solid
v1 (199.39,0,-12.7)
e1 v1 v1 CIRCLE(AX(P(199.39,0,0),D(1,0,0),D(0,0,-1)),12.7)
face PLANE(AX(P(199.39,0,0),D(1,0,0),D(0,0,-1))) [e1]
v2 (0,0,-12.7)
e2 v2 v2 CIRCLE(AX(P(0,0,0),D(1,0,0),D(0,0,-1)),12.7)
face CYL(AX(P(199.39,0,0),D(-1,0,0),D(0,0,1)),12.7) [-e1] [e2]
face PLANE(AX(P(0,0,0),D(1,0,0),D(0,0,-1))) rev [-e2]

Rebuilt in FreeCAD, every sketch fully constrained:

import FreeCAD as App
import Part
import Sketcher
Q = App.Units.Quantity

doc = App.newDocument("Part")
body = doc.addObject("PartDesign::Body", "Body")

# Sketch on YZ plane
sketch1 = body.newObject("Sketcher::SketchObject", "Sketch")
sketch1.AttachmentSupport = (doc.getObject("YZ_Plane"), [""])
sketch1.MapMode = "FlatFace"
sketch1.addGeometry(Part.Circle(App.Vector(0, 0, 0), App.Vector(0, 0, 1), 12.7), False)
sketch1.addConstraint(Sketcher.Constraint("Coincident", 0, 3, -1, 1))
sketch1.addConstraint(Sketcher.Constraint("Diameter", 0, Q("1 in")))
pad1 = body.newObject("PartDesign::Pad", "Pad")
pad1.Profile = sketch1
pad1.Length = Q("7.85 in")

doc.recompute()
